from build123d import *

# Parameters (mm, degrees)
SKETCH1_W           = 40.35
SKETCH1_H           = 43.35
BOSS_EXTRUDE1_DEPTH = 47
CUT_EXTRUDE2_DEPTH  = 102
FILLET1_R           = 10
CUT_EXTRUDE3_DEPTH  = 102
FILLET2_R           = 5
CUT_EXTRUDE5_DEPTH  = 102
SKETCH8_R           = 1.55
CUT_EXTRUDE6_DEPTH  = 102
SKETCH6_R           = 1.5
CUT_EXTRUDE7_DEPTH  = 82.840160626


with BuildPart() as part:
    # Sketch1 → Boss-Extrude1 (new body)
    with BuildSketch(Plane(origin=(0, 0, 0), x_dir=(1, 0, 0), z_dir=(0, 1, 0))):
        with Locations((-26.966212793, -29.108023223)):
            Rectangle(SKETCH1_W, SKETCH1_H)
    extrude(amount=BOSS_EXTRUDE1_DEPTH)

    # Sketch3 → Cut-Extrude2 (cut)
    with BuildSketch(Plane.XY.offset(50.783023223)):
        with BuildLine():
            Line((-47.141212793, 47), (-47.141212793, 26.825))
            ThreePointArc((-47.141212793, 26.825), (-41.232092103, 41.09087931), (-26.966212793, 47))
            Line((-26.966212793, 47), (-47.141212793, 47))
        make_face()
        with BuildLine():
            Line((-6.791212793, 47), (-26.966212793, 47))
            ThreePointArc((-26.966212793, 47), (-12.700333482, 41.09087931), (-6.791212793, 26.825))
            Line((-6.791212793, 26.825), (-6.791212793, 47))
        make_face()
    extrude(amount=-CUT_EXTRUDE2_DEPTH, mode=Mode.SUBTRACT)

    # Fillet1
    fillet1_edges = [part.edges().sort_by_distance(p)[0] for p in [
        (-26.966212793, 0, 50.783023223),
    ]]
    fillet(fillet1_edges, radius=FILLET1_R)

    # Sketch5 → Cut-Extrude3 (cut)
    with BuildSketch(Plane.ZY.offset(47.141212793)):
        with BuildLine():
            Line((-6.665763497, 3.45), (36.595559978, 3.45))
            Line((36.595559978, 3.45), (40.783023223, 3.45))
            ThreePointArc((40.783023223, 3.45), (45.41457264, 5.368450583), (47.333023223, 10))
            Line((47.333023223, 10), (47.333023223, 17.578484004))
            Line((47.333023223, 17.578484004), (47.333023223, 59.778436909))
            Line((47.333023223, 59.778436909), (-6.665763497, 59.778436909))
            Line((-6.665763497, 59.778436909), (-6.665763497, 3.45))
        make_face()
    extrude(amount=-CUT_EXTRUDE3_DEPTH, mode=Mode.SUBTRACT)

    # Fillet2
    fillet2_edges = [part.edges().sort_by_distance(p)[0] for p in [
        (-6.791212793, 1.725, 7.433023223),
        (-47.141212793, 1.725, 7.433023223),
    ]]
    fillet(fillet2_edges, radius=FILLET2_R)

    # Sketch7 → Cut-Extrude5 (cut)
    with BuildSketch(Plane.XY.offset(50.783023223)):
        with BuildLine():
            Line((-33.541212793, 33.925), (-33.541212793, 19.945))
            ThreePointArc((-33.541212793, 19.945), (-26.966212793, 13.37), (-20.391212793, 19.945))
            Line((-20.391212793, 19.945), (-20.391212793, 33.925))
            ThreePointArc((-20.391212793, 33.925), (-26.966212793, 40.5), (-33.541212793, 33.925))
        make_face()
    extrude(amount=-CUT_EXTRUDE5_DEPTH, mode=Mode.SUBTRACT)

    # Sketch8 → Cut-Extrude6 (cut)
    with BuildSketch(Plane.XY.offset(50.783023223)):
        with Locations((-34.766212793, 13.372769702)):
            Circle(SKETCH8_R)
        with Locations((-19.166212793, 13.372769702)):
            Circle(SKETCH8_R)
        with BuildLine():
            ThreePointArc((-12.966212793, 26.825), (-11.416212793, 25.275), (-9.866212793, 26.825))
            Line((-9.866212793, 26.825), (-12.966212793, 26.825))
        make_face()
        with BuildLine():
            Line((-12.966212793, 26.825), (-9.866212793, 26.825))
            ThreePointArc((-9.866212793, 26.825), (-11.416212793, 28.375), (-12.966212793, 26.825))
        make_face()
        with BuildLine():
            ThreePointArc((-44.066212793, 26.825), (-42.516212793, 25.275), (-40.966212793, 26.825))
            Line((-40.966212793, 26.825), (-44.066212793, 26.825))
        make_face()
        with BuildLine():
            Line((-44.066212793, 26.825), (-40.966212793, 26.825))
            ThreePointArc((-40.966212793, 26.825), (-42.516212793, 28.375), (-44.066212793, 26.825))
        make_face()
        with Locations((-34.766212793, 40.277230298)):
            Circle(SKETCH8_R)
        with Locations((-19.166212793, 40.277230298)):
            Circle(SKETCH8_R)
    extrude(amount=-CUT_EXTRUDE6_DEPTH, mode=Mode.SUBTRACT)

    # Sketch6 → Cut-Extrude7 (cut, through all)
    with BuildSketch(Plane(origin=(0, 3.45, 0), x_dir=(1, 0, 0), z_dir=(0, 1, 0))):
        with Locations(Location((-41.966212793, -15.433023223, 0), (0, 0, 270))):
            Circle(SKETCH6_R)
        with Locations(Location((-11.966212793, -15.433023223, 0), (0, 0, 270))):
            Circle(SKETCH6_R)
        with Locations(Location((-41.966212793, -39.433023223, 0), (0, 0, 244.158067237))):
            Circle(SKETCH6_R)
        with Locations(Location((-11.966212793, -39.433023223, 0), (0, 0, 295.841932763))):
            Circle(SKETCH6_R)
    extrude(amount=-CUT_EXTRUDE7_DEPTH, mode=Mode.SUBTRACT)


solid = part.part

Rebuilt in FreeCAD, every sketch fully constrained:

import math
import FreeCAD as App
import Part
import Sketcher


def edges_at(feature, points):
    """Names of the edges that pass closest to the given points."""
    edges = feature.Shape.Edges
    near = lambda p: min(range(len(edges)), key=lambda i: edges[i].distToShape(Part.Vertex(*p))[0])
    return sorted({f"Edge{near(p) + 1}" for p in points})

doc = App.newDocument("Part")
body = doc.addObject("PartDesign::Body", "Body")

sketch1 = body.newObject("Sketcher::SketchObject", "Sketch")
sketch1.AttachmentSupport = (doc.getObject("XZ_Plane"), [""])
sketch1.MapMode = "FlatFace"
sketch1.addGeometry(Part.LineSegment(App.Vector(-47, 7, 0), App.Vector(-47, 51, 0)), False)
sketch1.addGeometry(Part.LineSegment(App.Vector(-47, 51, 0), App.Vector(-7, 51, 0)), False)
sketch1.addGeometry(Part.LineSegment(App.Vector(-7, 51, 0), App.Vector(-7, 7, 0)), False)
sketch1.addGeometry(Part.LineSegment(App.Vector(-7, 7, 0), App.Vector(-47, 7, 0)), False)
sketch1.addConstraint(Sketcher.Constraint("Coincident", 0, 2, 1, 1))
sketch1.addConstraint(Sketcher.Constraint("Coincident", 1, 2, 2, 1))
sketch1.addConstraint(Sketcher.Constraint("Coincident", 2, 2, 3, 1))
sketch1.addConstraint(Sketcher.Constraint("Coincident", 3, 2, 0, 1))
sketch1.addConstraint(Sketcher.Constraint("Vertical", 0))
sketch1.addConstraint(Sketcher.Constraint("Horizontal", 1))
sketch1.addConstraint(Sketcher.Constraint("Vertical", 2))
sketch1.addConstraint(Sketcher.Constraint("Horizontal", 3))
sketch1.addConstraint(Sketcher.Constraint("DistanceX", 1, 1, 1, 2, 40.35))
sketch1.addConstraint(Sketcher.Constraint("DistanceY", 0, 1, 0, 2, 43.35))
sketch1.addConstraint(Sketcher.Constraint("DistanceX", 0, 2, -1, 1, 47.141213))
sketch1.addConstraint(Sketcher.Constraint("DistanceY", -1, 1, 0, 2, 50.783023))
pad1 = body.newObject("PartDesign::Pad", "Pad")
pad1.Profile = sketch1
pad1.Length = 47
pad1.Reversed = True

sketch2 = body.newObject("Sketcher::SketchObject", "Sketch001")
sketch2.AttachmentSupport = (doc.getObject("XY_Plane"), [""])
sketch2.MapMode = "FlatFace"
sketch2.AttachmentOffset = App.Placement(App.Vector(0, 0, 50.783023), App.Rotation())
sketch2.addGeometry(Part.LineSegment(App.Vector(-47, 47, 0), App.Vector(-47, 27, 0)), False)
sketch2.addGeometry(Part.ArcOfCircle(Part.Circle(App.Vector(-27, 27, 0), App.Vector(0, 0, 1), 20), math.radians(90), math.radians(180)), False)
sketch2.addGeometry(Part.LineSegment(App.Vector(-27, 47, 0), App.Vector(-47, 47, 0)), False)
sketch2.addGeometry(Part.LineSegment(App.Vector(-7, 47, 0), App.Vector(-27, 47, 0)), False)
sketch2.addGeometry(Part.ArcOfCircle(Part.Circle(App.Vector(-27, 27, 0), App.Vector(0, 0, 1), 20), math.radians(0), math.radians(90)), False)
sketch2.addGeometry(Part.LineSegment(App.Vector(-7, 27, 0), App.Vector(-7, 47, 0)), False)
sketch2.addConstraint(Sketcher.Constraint("Tangent", 0, 2, 1, 2))
sketch2.addConstraint(Sketcher.Constraint("Tangent", 1, 1, 2, 1))
sketch2.addConstraint(Sketcher.Constraint("Coincident", 2, 2, 0, 1))
sketch2.addConstraint(Sketcher.Constraint("Tangent", 3, 2, 4, 2))
sketch2.addConstraint(Sketcher.Constraint("Tangent", 4, 1, 5, 1))
sketch2.addConstraint(Sketcher.Constraint("Coincident", 5, 2, 3, 1))
sketch2.addConstraint(Sketcher.Constraint("Vertical", 0))
sketch2.addConstraint(Sketcher.Constraint("Horizontal", 2))
sketch2.addConstraint(Sketcher.Constraint("Horizontal", 3))
sketch2.addConstraint(Sketcher.Constraint("Vertical", 5))
sketch2.addConstraint(Sketcher.Constraint("Coincident", 4, 3, 1, 3))
sketch2.addConstraint(Sketcher.Constraint("Equal", 1, 4))
sketch2.addConstraint(Sketcher.Constraint("DistanceY", -1, 1, 1, 1, 47.0))
sketch2.addConstraint(Sketcher.Constraint("Radius", 1, 20.175))
sketch2.addConstraint(Sketcher.Constraint("DistanceX", 1, 3, -1, 1, 26.966213))
pocket1 = body.newObject("PartDesign::Pocket", "Pocket")
pocket1.Profile = sketch2
pocket1.Length = 102
doc.recompute()

fillet = body.newObject("PartDesign::Fillet", "Fillet")
fillet.Base = (pocket1, edges_at(pocket1, [(-26.966, 0, 50.783)]))
fillet.Radius = 10

sketch3 = body.newObject("Sketcher::SketchObject", "Sketch002")
sketch3.AttachmentSupport = (doc.getObject("YZ_Plane"), [""])
sketch3.MapMode = "FlatFace"
sketch3.AttachmentOffset = App.Placement(App.Vector(0, 0, -47.141213), App.Rotation())
sketch3.addGeometry(Part.LineSegment(App.Vector(3, -7, 0), App.Vector(3, 41, 0)), False)
sketch3.addGeometry(Part.ArcOfCircle(Part.Circle(App.Vector(10, 41, 0), App.Vector(0, 0, 1), 7), math.radians(90), math.radians(180)), False)
sketch3.addGeometry(Part.LineSegment(App.Vector(10, 47, 0), App.Vector(60, 47, 0)), False)
sketch3.addGeometry(Part.LineSegment(App.Vector(60, 47, 0), App.Vector(60, -7, 0)), False)
sketch3.addGeometry(Part.LineSegment(App.Vector(60, -7, 0), App.Vector(3, -7, 0)), False)
sketch3.addConstraint(Sketcher.Constraint("Tangent", 0, 2, 1, 2))
sketch3.addConstraint(Sketcher.Constraint("Tangent", 1, 1, 2, 1))
sketch3.addConstraint(Sketcher.Constraint("Coincident", 2, 2, 3, 1))
sketch3.addConstraint(Sketcher.Constraint("Coincident", 3, 2, 4, 1))
sketch3.addConstraint(Sketcher.Constraint("Coincident", 4, 2, 0, 1))
sketch3.addConstraint(Sketcher.Constraint("Vertical", 0))
sketch3.addConstraint(Sketcher.Constraint("Horizontal", 2))
sketch3.addConstraint(Sketcher.Constraint("Vertical", 3))
sketch3.addConstraint(Sketcher.Constraint("Horizontal", 4))
sketch3.addConstraint(Sketcher.Constraint("Radius", 1, 6.55))
sketch3.addConstraint(Sketcher.Constraint("DistanceX", -1, 1, 1, 3, 10.0))
sketch3.addConstraint(Sketcher.Constraint("DistanceX", 2, 1, 2, 2, 49.778437))
sketch3.addConstraint(Sketcher.Constraint("DistanceY", 0, 1, 0, 2, 47.448787))
sketch3.addConstraint(Sketcher.Constraint("DistanceY", -1, 1, 1, 3, 40.783023))
pocket2 = body.newObject("PartDesign::Pocket", "Pocket001")
pocket2.Profile = sketch3
pocket2.Length = 102
pocket2.Reversed = True
doc.recompute()

fillet2 = body.newObject("PartDesign::Fillet", "Fillet001")
fillet2.Base = (pocket2, edges_at(pocket2, [(-6.791, 1.725, 7.433), (-47.141, 1.725, 7.433)]))
fillet2.Radius = 5

sketch4 = body.newObject("Sketcher::SketchObject", "Sketch003")
sketch4.AttachmentSupport = (doc.getObject("XY_Plane"), [""])
sketch4.MapMode = "FlatFace"
sketch4.AttachmentOffset = App.Placement(App.Vector(0, 0, 50.783023), App.Rotation())
sketch4.addGeometry(Part.LineSegment(App.Vector(-34, 34, 0), App.Vector(-34, 20, 0)), False)
sketch4.addGeometry(Part.ArcOfCircle(Part.Circle(App.Vector(-27, 20, 0), App.Vector(0, 0, 1), 7), math.radians(180), math.radians(360)), False)
sketch4.addGeometry(Part.LineSegment(App.Vector(-20, 20, 0), App.Vector(-20, 34, 0)), False)
sketch4.addGeometry(Part.ArcOfCircle(Part.Circle(App.Vector(-27, 34, 0), App.Vector(0, 0, 1), 7), math.radians(0), math.radians(180)), False)
sketch4.addConstraint(Sketcher.Constraint("Tangent", 0, 2, 1, 1))
sketch4.addConstraint(Sketcher.Constraint("Tangent", 1, 2, 2, 1))
sketch4.addConstraint(Sketcher.Constraint("Tangent", 2, 2, 3, 1))
sketch4.addConstraint(Sketcher.Constraint("Tangent", 3, 2, 0, 1))
sketch4.addConstraint(Sketcher.Constraint("Vertical", 0))
sketch4.addConstraint(Sketcher.Constraint("Vertical", 2))
sketch4.addConstraint(Sketcher.Constraint("Radius", 1, 6.575))
sketch4.addConstraint(Sketcher.Constraint("DistanceY", 0, 2, 0, 1, 13.98))
sketch4.addConstraint(Sketcher.Constraint("DistanceY", -1, 1, 1, 3, 19.945))
sketch4.addConstraint(Sketcher.Constraint("DistanceX", 1, 3, -1, 1, 26.966213))
pocket3 = body.newObject("PartDesign::Pocket", "Pocket002")
pocket3.Profile = sketch4
pocket3.Length = 102

sketch5 = body.newObject("Sketcher::SketchObject", "Sketch004")
sketch5.AttachmentSupport = (doc.getObject("XY_Plane"), [""])
sketch5.MapMode = "FlatFace"
sketch5.AttachmentOffset = App.Placement(App.Vector(0, 0, 50.783023), App.Rotation())
sketch5.addGeometry(Part.Circle(App.Vector(-34.8, 13.4, 0), App.Vector(0, 0, 1), 1.6), False)
sketch5.addGeometry(Part.Circle(App.Vector(-19.2, 13.4, 0), App.Vector(0, 0, 1), 1.6), False)
sketch5.addGeometry(Part.Circle(App.Vector(-11.4, 26.8, 0), App.Vector(0, 0, 1), 1.6), False)
sketch5.addGeometry(Part.Circle(App.Vector(-42.5, 26.8, 0), App.Vector(0, 0, 1), 1.6), False)
sketch5.addGeometry(Part.Circle(App.Vector(-34.8, 40.3, 0), App.Vector(0, 0, 1), 1.6), False)
sketch5.addGeometry(Part.Circle(App.Vector(-19.2, 40.3, 0), App.Vector(0, 0, 1), 1.6), False)
sketch5.addConstraint(Sketcher.Constraint("Equal", 0, 1))
sketch5.addConstraint(Sketcher.Constraint("Equal", 1, 2))
sketch5.addConstraint(Sketcher.Constraint("Equal", 2, 3))
sketch5.addConstraint(Sketcher.Constraint("Equal", 3, 4))
sketch5.addConstraint(Sketcher.Constraint("Equal", 4, 5))
sketch5.addConstraint(Sketcher.Constraint("Horizontal", 0, 3, 1, 3))
sketch5.addConstraint(Sketcher.Constraint("Horizontal", 2, 3, 3, 3))
sketch5.addConstraint(Sketcher.Constraint("Horizontal", 4, 3, 5, 3))
sketch5.addConstraint(Sketcher.Constraint("Vertical", 0, 3, 4, 3))
sketch5.addConstraint(Sketcher.Constraint("Vertical", 1, 3, 5, 3))
sketch5.addConstraint(Sketcher.Constraint("Diameter", 0, 3.1))
sketch5.addConstraint(Sketcher.Constraint("DistanceX", 0, 3, 1, 3, 15.6))
sketch5.addConstraint(Sketcher.Constraint("DistanceX", 3, 3, 2, 3, 31.1))
sketch5.addConstraint(Sketcher.Constraint("DistanceX", 1, 3, 2, 3, 7.75))
sketch5.addConstraint(Sketcher.Constraint("DistanceY", -1, 1, 2, 3, 26.825))
sketch5.addConstraint(Sketcher.Constraint("DistanceY", -1, 1, 0, 3, 13.37277))
sketch5.addConstraint(Sketcher.Constraint("DistanceY", -1, 1, 4, 3, 40.27723))
sketch5.addConstraint(Sketcher.Constraint("DistanceX", 0, 3, -1, 1, 34.766213))
pocket4 = body.newObject("PartDesign::Pocket", "Pocket003")
pocket4.Profile = sketch5
pocket4.Length = 102

sketch6 = body.newObject("Sketcher::SketchObject", "Sketch005")
sketch6.AttachmentSupport = (doc.getObject("XZ_Plane"), [""])
sketch6.MapMode = "FlatFace"
sketch6.AttachmentOffset = App.Placement(App.Vector(0, 0, -3.45), App.Rotation())
sketch6.addGeometry(Part.Circle(App.Vector(-42, 15.4, 0), App.Vector(0, 0, 1), 1.5), False)
sketch6.addGeometry(Part.Circle(App.Vector(-12, 15.4, 0), App.Vector(0, 0, 1), 1.5), False)
sketch6.addGeometry(Part.Circle(App.Vector(-42, 39.4, 0), App.Vector(0, 0, 1), 1.5), False)
sketch6.addGeometry(Part.Circle(App.Vector(-12, 39.4, 0), App.Vector(0, 0, 1), 1.5), False)
sketch6.addConstraint(Sketcher.Constraint("Equal", 0, 1))
sketch6.addConstraint(Sketcher.Constraint("Equal", 1, 2))
sketch6.addConstraint(Sketcher.Constraint("Equal", 2, 3))
sketch6.addConstraint(Sketcher.Constraint("Horizontal", 0, 3, 1, 3))
sketch6.addConstraint(Sketcher.Constraint("Horizontal", 2, 3, 3, 3))
sketch6.addConstraint(Sketcher.Constraint("Vertical", 0, 3, 2, 3))
sketch6.addConstraint(Sketcher.Constraint("Vertical", 1, 3, 3, 3))
sketch6.addConstraint(Sketcher.Constraint("Diameter", 0, 3.0))
sketch6.addConstraint(Sketcher.Constraint("DistanceX", 0, 3, 1, 3, 30.0))
sketch6.addConstraint(Sketcher.Constraint("DistanceY", 0, 3, 2, 3, 24.0))
sketch6.addConstraint(Sketcher.Constraint("DistanceX", 0, 3, -1, 1, 41.966213))
sketch6.addConstraint(Sketcher.Constraint("DistanceY", -1, 1, 0, 3, 15.433023))
pocket5 = body.newObject("PartDesign::Pocket", "Pocket004")
pocket5.Profile = sketch6
pocket5.Type = "ThroughAll"
pocket5.Reversed = True

doc.recompute()
